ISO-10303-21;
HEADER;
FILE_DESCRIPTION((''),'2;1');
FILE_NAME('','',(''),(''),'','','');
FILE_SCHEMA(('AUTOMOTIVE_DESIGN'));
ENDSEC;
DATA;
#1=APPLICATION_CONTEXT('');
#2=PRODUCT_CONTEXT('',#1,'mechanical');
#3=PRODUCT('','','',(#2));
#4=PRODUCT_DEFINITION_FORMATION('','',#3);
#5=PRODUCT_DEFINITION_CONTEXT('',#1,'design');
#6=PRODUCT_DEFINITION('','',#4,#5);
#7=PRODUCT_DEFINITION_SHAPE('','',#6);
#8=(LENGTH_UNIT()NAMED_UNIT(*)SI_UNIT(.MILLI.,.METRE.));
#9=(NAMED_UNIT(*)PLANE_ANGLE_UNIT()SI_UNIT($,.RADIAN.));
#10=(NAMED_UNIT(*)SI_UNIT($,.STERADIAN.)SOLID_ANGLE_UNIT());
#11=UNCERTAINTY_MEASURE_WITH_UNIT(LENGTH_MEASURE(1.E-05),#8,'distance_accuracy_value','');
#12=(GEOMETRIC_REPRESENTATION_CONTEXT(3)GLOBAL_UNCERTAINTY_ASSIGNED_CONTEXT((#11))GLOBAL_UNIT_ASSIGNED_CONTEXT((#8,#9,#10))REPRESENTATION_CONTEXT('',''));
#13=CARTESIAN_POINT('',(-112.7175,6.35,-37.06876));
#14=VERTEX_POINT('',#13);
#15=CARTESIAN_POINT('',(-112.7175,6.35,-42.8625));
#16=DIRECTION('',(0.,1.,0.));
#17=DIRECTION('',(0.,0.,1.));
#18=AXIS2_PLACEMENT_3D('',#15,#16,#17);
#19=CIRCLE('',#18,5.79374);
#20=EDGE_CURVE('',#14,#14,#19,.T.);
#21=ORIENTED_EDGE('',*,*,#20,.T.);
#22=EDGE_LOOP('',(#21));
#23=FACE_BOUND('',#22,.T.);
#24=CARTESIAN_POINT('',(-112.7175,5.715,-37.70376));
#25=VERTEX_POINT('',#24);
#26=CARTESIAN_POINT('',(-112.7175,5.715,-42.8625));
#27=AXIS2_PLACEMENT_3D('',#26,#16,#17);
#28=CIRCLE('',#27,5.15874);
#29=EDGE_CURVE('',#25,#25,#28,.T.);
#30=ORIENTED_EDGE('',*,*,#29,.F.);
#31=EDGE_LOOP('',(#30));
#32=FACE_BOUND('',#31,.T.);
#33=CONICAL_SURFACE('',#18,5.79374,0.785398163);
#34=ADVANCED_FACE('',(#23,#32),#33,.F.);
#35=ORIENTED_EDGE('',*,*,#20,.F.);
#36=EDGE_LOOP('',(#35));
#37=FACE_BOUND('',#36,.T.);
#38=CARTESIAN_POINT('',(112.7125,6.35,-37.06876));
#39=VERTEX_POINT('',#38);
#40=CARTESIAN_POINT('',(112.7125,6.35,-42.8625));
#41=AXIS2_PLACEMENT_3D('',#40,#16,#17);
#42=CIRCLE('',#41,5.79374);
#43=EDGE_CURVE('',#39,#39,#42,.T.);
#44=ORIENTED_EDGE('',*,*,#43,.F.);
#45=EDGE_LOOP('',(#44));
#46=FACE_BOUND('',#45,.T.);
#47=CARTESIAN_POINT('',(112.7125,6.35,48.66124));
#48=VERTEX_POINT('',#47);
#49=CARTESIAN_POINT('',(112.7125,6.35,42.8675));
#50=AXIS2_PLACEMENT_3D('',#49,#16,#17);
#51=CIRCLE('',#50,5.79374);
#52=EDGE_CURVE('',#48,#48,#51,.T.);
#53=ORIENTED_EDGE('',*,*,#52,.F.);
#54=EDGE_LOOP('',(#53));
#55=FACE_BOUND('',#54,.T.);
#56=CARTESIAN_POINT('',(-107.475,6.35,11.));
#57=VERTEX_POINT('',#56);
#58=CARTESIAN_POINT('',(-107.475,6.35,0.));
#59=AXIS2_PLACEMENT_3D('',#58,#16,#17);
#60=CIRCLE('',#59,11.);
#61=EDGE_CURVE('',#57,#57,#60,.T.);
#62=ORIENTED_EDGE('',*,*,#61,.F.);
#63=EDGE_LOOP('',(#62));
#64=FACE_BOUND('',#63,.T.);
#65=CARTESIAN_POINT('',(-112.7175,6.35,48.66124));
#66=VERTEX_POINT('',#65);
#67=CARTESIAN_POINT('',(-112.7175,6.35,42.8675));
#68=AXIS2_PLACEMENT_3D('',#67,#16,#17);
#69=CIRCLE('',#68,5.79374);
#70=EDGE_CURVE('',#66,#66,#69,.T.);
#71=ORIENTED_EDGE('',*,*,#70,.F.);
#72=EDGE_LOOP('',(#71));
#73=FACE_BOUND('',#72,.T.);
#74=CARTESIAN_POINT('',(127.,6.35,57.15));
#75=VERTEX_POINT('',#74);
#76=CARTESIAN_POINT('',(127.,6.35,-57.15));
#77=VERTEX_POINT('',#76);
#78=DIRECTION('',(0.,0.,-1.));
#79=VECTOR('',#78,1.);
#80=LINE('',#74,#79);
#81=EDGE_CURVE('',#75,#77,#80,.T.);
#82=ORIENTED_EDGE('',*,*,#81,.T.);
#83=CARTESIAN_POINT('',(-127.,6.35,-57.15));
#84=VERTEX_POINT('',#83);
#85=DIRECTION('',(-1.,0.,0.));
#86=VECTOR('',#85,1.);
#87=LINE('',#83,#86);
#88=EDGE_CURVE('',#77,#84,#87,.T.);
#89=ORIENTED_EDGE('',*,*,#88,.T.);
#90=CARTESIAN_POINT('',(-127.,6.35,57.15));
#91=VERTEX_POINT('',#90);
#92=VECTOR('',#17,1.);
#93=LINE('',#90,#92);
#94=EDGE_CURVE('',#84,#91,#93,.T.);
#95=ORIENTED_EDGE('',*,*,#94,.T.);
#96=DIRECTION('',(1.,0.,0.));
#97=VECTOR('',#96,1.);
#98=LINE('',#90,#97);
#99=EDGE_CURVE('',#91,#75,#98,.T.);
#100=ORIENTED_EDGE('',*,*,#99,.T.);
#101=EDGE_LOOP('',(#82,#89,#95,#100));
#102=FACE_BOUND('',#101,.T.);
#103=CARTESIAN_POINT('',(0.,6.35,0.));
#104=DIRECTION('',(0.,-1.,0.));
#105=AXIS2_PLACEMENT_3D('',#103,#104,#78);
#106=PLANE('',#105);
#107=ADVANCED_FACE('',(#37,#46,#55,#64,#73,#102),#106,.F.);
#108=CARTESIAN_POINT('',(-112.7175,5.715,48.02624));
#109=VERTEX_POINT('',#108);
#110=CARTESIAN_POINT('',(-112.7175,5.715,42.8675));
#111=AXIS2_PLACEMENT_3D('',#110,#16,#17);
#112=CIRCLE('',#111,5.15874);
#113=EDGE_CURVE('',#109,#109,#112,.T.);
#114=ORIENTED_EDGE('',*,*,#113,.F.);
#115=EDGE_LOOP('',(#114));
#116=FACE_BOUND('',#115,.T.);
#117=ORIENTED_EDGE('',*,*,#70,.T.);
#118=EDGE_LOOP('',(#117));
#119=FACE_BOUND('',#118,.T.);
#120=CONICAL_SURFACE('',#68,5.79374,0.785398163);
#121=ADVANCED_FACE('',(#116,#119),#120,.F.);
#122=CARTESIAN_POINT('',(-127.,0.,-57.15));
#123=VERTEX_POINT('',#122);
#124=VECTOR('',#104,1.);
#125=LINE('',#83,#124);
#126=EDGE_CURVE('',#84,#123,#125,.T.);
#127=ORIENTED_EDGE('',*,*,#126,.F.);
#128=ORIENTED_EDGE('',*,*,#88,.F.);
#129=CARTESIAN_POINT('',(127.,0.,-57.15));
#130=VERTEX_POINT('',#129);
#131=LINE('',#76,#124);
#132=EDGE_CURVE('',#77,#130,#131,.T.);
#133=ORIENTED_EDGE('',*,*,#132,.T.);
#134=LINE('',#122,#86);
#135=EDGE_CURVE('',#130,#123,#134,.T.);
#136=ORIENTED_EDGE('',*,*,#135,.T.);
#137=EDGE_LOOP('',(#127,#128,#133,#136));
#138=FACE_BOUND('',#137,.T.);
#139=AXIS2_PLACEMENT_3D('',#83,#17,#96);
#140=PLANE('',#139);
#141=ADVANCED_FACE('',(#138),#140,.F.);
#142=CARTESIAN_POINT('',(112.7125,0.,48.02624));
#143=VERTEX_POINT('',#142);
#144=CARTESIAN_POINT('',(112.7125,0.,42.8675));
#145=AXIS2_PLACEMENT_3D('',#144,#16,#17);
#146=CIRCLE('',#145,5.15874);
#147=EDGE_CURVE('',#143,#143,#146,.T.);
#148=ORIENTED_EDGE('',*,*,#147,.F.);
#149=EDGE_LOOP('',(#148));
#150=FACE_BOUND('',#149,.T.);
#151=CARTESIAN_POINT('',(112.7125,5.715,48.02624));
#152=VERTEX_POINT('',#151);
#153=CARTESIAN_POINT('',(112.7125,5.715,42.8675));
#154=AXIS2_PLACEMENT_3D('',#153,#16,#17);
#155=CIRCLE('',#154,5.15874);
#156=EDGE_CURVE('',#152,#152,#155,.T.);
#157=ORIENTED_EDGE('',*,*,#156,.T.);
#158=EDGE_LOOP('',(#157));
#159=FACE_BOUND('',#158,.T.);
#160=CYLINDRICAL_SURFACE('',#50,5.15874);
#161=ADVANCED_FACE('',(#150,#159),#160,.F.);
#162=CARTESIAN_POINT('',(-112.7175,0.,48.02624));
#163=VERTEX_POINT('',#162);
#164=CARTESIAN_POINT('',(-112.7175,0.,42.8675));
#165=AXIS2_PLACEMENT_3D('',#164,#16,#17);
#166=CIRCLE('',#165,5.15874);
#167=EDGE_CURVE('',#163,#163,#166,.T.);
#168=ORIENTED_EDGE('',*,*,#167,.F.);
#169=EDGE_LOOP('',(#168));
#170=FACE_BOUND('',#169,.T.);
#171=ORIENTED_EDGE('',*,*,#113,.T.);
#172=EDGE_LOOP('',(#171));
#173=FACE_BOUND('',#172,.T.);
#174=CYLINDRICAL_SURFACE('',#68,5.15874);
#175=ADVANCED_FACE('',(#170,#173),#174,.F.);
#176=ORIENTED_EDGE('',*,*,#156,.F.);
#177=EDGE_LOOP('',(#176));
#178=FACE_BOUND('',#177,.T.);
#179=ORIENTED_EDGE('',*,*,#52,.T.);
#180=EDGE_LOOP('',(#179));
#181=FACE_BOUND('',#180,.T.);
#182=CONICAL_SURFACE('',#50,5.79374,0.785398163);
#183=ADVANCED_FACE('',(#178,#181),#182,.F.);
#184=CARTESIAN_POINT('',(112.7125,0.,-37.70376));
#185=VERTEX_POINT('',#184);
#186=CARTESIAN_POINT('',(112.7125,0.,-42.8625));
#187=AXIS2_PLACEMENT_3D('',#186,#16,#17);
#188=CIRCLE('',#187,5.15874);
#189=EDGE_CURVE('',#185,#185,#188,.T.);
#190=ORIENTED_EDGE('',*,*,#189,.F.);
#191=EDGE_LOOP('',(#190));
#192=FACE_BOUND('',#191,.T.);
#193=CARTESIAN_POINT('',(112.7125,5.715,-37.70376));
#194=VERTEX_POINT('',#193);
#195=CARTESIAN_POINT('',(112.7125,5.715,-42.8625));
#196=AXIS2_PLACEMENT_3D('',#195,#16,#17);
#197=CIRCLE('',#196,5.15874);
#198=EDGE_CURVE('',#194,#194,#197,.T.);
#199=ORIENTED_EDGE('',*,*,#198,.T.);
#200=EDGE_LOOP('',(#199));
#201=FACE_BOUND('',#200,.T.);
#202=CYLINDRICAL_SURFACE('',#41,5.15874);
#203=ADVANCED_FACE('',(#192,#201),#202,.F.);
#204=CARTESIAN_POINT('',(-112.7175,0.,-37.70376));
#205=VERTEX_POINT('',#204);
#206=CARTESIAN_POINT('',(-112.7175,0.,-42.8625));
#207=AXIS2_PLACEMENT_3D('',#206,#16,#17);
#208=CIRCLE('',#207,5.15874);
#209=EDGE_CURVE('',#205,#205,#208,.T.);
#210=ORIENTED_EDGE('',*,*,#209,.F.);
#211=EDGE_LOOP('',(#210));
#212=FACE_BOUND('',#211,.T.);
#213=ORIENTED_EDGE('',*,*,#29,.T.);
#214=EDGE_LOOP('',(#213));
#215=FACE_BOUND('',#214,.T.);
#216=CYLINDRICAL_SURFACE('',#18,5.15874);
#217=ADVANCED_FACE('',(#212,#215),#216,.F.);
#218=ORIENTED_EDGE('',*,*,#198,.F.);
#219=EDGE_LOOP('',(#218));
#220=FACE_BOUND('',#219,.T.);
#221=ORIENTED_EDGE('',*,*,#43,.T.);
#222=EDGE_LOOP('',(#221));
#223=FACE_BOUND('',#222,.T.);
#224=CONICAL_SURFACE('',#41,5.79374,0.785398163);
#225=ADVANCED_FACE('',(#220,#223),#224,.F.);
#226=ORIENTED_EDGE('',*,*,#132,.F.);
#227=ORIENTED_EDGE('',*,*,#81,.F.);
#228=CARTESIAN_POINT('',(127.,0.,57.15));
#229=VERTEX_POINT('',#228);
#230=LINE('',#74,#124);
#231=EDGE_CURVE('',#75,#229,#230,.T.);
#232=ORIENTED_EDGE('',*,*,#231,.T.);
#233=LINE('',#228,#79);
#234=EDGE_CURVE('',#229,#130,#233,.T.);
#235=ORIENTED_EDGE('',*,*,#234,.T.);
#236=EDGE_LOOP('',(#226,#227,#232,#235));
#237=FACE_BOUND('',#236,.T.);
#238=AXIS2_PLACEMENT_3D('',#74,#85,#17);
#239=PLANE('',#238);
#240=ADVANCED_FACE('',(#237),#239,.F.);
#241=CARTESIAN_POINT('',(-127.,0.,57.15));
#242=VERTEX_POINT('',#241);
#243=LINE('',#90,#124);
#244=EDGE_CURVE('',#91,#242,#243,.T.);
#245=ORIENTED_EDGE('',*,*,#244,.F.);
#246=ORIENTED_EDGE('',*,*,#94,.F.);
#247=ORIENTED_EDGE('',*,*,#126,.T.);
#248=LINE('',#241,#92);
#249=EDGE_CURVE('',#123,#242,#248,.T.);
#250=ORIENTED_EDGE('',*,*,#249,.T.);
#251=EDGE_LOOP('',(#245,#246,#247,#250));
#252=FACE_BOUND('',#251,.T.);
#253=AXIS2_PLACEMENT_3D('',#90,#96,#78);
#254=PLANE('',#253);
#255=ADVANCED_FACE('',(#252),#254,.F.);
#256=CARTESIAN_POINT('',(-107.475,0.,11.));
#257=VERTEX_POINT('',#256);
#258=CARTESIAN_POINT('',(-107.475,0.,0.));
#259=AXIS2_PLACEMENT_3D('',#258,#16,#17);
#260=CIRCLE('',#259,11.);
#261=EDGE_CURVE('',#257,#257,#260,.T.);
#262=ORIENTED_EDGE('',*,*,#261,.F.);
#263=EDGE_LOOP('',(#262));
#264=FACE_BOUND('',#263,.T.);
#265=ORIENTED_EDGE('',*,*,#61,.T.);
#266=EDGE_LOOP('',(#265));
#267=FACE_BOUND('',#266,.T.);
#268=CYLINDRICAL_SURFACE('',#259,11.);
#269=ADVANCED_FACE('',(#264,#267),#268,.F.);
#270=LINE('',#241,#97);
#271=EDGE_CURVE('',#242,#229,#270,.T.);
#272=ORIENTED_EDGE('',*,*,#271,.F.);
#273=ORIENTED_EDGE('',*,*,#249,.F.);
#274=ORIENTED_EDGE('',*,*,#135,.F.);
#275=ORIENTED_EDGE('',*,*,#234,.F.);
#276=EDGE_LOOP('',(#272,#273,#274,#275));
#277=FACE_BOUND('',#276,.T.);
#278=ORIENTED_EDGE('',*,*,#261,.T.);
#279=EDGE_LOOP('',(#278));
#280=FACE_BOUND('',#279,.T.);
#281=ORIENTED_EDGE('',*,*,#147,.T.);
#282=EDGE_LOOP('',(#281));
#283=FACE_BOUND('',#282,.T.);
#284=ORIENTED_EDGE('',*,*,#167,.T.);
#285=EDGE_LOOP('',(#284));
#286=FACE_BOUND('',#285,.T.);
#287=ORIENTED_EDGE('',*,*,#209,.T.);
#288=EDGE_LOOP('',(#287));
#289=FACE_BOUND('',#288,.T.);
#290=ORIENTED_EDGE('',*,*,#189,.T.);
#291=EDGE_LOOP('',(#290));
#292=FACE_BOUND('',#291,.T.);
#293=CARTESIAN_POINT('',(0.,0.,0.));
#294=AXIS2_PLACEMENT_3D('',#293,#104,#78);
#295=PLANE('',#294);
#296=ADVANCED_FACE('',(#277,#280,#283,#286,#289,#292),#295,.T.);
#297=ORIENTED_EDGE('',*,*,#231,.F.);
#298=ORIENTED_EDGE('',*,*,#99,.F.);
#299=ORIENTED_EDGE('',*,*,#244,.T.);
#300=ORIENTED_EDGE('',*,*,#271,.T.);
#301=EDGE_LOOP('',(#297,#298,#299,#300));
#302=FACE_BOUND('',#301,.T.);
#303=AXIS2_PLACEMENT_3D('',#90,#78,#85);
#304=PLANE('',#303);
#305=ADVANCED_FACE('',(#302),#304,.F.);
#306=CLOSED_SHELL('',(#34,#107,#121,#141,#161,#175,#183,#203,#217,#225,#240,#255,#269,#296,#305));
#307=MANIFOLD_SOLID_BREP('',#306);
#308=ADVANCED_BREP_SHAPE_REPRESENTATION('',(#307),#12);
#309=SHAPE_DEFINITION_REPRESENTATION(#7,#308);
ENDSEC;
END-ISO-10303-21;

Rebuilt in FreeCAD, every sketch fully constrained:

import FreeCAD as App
import Part
import Sketcher

V = App.Vector
Q = App.Units.Quantity

doc = App.newDocument("Part")
body = doc.addObject("PartDesign::Body", "Body")

sketch1 = body.newObject("Sketcher::SketchObject", "Sketch")
sketch1.AttachmentSupport = (doc.getObject("XZ_Plane"), [""])
sketch1.MapMode = "FlatFace"
sketch1.addGeometry([
    Part.LineSegment(V(-127, -57, 0), V(-127, 57, 0)),
    Part.LineSegment(V(-127, 57, 0), V(127, 57, 0)),
    Part.LineSegment(V(127, 57, 0), V(127, -57, 0)),
    Part.LineSegment(V(127, -57, 0), V(-127, -57, 0)),
], False)
sketch1.addConstraint([
    Sketcher.Constraint("Coincident", 0, 2, 1, 1),
    Sketcher.Constraint("Coincident", 1, 2, 2, 1),
    Sketcher.Constraint("Coincident", 2, 2, 3, 1),
    Sketcher.Constraint("Coincident", 3, 2, 0, 1),
    Sketcher.Constraint("Vertical", 0),
    Sketcher.Constraint("Horizontal", 1),
    Sketcher.Constraint("Vertical", 2),
    Sketcher.Constraint("Horizontal", 3),
    Sketcher.Constraint("Symmetric", 0, 2, 2, 2, -1, 1),
    Sketcher.Constraint("DistanceX", 1, 1, 1, 2, Q("10 in")),
    Sketcher.Constraint("DistanceY", 0, 1, 0, 2, Q("4.5 in")),
])
pad1 = body.newObject("PartDesign::Pad", "Pad")
pad1.Profile = sketch1
pad1.Length = Q("0.25 in")
pad1.Reversed = True

sketch2 = body.newObject("Sketcher::SketchObject", "Sketch001")
sketch2.AttachmentSupport = (doc.getObject("XZ_Plane"), [""])
sketch2.MapMode = "FlatFace"
sketch2.AttachmentOffset = App.Placement(V(0, 0, -0.25 * 25.4), App.Rotation())
sketch2.addGeometry(Part.Circle(V(-107, 0, 0), V(0, 0, 1), 11), False)
sketch2.addConstraint([
    Sketcher.Constraint("PointOnObject", 0, 3, -1),
    Sketcher.Constraint("Diameter", 0, Q("22 mm")),
    Sketcher.Constraint("DistanceX", 0, 3, -1, 1, Q("107.475 mm")),
])
pocket1 = body.newObject("PartDesign::Pocket", "Pocket")
pocket1.Profile = sketch2
pocket1.Type = "ThroughAll"
pocket1.Reversed = True

sketch3 = body.newObject("Sketcher::SketchObject", "Sketch002")
sketch3.AttachmentSupport = (doc.getObject("XZ_Plane"), [""])
sketch3.MapMode = "FlatFace"
sketch3.AttachmentOffset = App.Placement(V(0, 0, -0.25 * 25.4), App.Rotation())
sketch3.addGeometry([
    Part.Circle(V(113, -43, 0), V(0, 0, 1), 5),
    Part.Circle(V(113, 43, 0), V(0, 0, 1), 5),
    Part.Circle(V(-113, 43, 0), V(0, 0, 1), 5),
    Part.Circle(V(-113, -43, 0), V(0, 0, 1), 5),
], False)
sketch3.addConstraint([
    Sketcher.Constraint("Equal", 0, 1),
    Sketcher.Constraint("Equal", 1, 2),
    Sketcher.Constraint("Equal", 2, 3),
    Sketcher.Constraint("Horizontal", 1, 3, 2, 3),
    Sketcher.Constraint("Horizontal", 0, 3, 3, 3),
    Sketcher.Constraint("Vertical", 0, 3, 1, 3),
    Sketcher.Constraint("Vertical", 2, 3, 3, 3),
    Sketcher.Constraint("Diameter", 0, Q("0.4062 in")),
    Sketcher.Constraint("DistanceX", -1, 1, 0, 3, Q("4.4375 in")),
    Sketcher.Constraint("DistanceY", 0, 3, -1, 1, Q("1.6875 in")),
    Sketcher.Constraint("DistanceY", -1, 1, 1, 3, Q("42.8675 mm")),
    Sketcher.Constraint("DistanceX", 2, 3, -1, 1, Q("112.7175 mm")),
])
doc.recompute()
hole = body.newObject("PartDesign::Hole", "Hole")
hole.Profile = sketch3
hole.ThreadType = "None"
hole.Diameter = Q("0.4062 in")
hole.DepthType = "ThroughAll"
hole.HoleCutType = "Countersink"
hole.HoleCutDiameter = Q("0.4562 in")
hole.HoleCutCountersinkAngle = 90
hole.Reversed = True

doc.recompute()
